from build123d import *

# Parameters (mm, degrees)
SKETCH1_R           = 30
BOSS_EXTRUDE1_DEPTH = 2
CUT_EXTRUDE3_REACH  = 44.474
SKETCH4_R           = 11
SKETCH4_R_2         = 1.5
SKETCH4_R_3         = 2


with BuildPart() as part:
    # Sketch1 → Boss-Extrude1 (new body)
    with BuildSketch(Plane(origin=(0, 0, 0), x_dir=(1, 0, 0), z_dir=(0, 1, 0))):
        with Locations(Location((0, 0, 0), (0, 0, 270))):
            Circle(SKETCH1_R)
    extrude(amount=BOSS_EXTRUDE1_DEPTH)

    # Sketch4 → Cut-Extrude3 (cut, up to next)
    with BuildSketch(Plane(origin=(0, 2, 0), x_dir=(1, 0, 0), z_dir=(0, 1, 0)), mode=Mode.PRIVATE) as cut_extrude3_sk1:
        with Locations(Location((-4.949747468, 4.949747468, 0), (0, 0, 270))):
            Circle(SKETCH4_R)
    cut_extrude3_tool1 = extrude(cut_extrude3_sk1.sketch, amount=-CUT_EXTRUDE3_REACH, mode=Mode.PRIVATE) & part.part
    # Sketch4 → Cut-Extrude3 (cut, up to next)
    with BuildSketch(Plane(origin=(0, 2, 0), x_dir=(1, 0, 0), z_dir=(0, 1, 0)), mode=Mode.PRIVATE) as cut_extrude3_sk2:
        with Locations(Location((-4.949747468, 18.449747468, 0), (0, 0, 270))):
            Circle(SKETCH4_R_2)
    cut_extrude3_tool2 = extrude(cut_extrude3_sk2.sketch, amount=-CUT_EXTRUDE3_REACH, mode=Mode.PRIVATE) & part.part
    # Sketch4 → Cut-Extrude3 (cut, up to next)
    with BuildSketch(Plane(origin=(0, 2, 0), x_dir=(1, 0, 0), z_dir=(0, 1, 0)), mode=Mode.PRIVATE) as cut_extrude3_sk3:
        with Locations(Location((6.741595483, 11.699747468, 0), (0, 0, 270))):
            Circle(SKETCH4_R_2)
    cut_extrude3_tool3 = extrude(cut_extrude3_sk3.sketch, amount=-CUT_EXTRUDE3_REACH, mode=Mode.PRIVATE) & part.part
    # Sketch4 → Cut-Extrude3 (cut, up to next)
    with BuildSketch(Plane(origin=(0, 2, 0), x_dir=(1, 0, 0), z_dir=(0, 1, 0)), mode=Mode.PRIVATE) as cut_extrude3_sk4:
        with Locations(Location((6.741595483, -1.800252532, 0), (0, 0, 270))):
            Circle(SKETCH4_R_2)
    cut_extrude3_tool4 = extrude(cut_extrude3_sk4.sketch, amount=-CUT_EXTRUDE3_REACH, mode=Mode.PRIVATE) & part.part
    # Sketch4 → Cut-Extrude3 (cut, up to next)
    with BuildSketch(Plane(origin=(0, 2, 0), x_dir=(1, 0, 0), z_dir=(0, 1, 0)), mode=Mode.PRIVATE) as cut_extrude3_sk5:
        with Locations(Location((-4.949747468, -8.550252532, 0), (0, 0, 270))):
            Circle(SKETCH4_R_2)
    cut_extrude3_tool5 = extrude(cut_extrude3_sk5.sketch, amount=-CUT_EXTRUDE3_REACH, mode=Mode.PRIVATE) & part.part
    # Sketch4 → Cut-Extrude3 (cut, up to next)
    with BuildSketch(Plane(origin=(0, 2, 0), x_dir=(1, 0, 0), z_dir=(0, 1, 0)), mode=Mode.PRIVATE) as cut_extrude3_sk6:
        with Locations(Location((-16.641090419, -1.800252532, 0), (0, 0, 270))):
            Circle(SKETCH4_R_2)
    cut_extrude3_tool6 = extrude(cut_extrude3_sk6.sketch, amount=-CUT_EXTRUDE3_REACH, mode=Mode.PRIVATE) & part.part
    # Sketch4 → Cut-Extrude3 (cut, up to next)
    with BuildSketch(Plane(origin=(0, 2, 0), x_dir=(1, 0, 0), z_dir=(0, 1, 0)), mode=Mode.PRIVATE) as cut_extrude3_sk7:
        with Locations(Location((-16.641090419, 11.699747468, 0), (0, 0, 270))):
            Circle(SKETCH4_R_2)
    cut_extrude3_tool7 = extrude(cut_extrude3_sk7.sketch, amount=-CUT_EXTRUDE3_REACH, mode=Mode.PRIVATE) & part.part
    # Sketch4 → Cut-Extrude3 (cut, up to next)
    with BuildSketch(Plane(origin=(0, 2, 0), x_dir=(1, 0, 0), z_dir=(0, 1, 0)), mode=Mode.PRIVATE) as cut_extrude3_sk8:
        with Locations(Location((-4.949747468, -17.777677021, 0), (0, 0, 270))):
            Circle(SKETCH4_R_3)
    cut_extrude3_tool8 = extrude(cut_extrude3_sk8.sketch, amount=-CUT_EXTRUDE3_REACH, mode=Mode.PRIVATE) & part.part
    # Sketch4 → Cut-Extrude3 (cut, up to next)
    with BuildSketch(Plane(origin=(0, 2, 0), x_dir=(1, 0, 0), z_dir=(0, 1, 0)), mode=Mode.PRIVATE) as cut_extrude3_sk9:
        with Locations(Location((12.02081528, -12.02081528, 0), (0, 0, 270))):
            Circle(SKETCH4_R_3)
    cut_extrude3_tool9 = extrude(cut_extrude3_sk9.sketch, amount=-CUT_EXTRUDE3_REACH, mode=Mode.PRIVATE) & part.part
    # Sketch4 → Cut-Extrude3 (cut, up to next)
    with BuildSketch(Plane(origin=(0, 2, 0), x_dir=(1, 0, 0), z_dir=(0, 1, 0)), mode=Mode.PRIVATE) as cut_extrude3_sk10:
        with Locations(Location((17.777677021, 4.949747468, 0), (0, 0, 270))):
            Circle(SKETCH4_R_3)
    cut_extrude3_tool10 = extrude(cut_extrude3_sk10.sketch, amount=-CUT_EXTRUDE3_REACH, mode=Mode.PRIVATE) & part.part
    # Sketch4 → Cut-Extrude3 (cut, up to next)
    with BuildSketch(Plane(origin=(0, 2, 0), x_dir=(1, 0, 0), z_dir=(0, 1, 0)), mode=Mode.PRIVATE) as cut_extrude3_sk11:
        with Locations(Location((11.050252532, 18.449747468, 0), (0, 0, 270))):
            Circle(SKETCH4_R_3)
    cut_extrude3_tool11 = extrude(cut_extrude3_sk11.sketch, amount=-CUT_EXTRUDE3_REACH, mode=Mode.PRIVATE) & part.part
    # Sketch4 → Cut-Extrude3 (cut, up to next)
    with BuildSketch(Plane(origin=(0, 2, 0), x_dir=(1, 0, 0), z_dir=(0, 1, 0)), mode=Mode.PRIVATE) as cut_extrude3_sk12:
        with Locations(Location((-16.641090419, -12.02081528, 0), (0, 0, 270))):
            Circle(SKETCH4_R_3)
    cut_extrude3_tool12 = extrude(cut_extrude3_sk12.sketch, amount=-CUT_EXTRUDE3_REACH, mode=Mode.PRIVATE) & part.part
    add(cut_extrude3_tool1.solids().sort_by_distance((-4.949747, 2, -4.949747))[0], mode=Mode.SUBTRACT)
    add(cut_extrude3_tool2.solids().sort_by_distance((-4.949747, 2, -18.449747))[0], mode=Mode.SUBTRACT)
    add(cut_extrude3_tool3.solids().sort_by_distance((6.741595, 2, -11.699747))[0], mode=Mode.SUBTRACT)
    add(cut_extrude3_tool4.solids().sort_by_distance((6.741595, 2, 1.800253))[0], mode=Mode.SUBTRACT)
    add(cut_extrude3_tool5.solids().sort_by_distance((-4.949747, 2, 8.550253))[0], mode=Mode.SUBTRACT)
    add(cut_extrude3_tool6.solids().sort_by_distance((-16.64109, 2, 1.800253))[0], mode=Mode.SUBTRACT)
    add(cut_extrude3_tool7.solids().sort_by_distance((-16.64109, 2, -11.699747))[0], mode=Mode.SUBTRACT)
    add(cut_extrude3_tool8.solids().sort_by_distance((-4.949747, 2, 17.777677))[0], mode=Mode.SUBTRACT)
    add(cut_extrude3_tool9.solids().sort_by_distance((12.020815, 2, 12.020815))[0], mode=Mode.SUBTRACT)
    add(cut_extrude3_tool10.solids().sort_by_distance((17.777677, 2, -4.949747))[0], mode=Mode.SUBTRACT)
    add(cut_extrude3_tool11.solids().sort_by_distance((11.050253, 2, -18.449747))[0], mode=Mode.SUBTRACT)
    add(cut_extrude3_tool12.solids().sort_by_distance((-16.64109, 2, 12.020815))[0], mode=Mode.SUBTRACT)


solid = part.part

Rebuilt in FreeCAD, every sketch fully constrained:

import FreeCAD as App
import Part
import Sketcher

V = App.Vector
Q = App.Units.Quantity

doc = App.newDocument("Part")
params = doc.addObject("Spreadsheet::Sheet", "Params")
for row, (alias, value) in enumerate([
    ("sketch1_diameter", "60 mm"),
    ("pad1_length", "2 mm"),
    ("sketch2_diameter", "22 mm"),
    ("sketch3_diameter", "3 mm"),
    ("sketch4_diameter", "3 mm"),
    ("sketch5_diameter", "3 mm"),
    ("sketch6_diameter", "3 mm"),
    ("sketch7_diameter", "3 mm"),
    ("sketch8_diameter", "3 mm"),
    ("sketch9_diameter", "4 mm"),
    ("sketch10_diameter", "4 mm"),
    ("sketch11_diameter", "4 mm"),
    ("sketch12_diameter", "4 mm"),
    ("sketch13_diameter", "4 mm"),
], start=1):
    params.set(f"A{row}", alias)
    params.set(f"B{row}", "=" + value)
    params.setAlias(f"B{row}", alias)

body = doc.addObject("PartDesign::Body", "Body")

# Sketch on XZ plane
sketch1 = body.newObject("Sketcher::SketchObject", "Sketch")
sketch1.AttachmentSupport = (doc.getObject("XZ_Plane"), [""])
sketch1.MapMode = "FlatFace"
sketch1.addGeometry(Part.Circle(V(0, 0, 0), V(0, 0, 1), 30), False)
sketch1.addConstraint(Sketcher.Constraint("Coincident", 0, 3, -1, 1))
sketch1.addConstraint(Sketcher.Constraint("Diameter", 0, Q("60 mm")))
sketch1.setExpression("Constraints[1]", "Params.sketch1_diameter")
pad1 = body.newObject("PartDesign::Pad", "Pad")
pad1.Profile = sketch1
pad1.setExpression("Length", "Params.pad1_length")
pad1.Reversed = True

# Sketch on XZ plane
sketch2 = body.newObject("Sketcher::SketchObject", "Sketch001")
sketch2.AttachmentSupport = (doc.getObject("XZ_Plane"), [""])
sketch2.MapMode = "FlatFace"
sketch2.AttachmentOffset = App.Placement(V(0, 0, -2), App.Rotation())
sketch2.addGeometry(Part.Circle(V(-4.949747, -4.949747, 0), V(0, 0, 1), 11), False)
sketch2.addConstraint(Sketcher.Constraint("Diameter", 0, Q("22 mm")))
sketch2.addConstraint(Sketcher.Constraint("DistanceX", 0, 3, -1, 1, Q("4.949747 mm")))
sketch2.addConstraint(Sketcher.Constraint("DistanceY", 0, 3, -1, 1, Q("4.949747 mm")))
sketch2.setExpression("Constraints[0]", "Params.sketch2_diameter")
pocket1 = body.newObject("PartDesign::Pocket", "Pocket")
pocket1.Profile = sketch2
pocket1.Type = "UpToFirst"
pocket1.Reversed = True

# Sketch on XZ plane
sketch3 = body.newObject("Sketcher::SketchObject", "Sketch002")
sketch3.AttachmentSupport = (doc.getObject("XZ_Plane"), [""])
sketch3.MapMode = "FlatFace"
sketch3.AttachmentOffset = App.Placement(V(0, 0, -2), App.Rotation())
sketch3.addGeometry(Part.Circle(V(-4.949747, -18.449747, 0), V(0, 0, 1), 1.5), False)
sketch3.addConstraint(Sketcher.Constraint("Diameter", 0, Q("3 mm")))
sketch3.addConstraint(Sketcher.Constraint("DistanceX", 0, 3, -1, 1, Q("4.949747 mm")))
sketch3.addConstraint(Sketcher.Constraint("DistanceY", 0, 3, -1, 1, Q("18.449747 mm")))
sketch3.setExpression("Constraints[0]", "Params.sketch3_diameter")
pocket2 = body.newObject("PartDesign::Pocket", "Pocket001")
pocket2.Profile = sketch3
pocket2.Type = "UpToFirst"
pocket2.Reversed = True

# Sketch on XZ plane
sketch4 = body.newObject("Sketcher::SketchObject", "Sketch003")
sketch4.AttachmentSupport = (doc.getObject("XZ_Plane"), [""])
sketch4.MapMode = "FlatFace"
sketch4.AttachmentOffset = App.Placement(V(0, 0, -2), App.Rotation())
sketch4.addGeometry(Part.Circle(V(6.741595, -11.699747, 0), V(0, 0, 1), 1.5), False)
sketch4.addConstraint(Sketcher.Constraint("Diameter", 0, Q("3 mm")))
sketch4.addConstraint(Sketcher.Constraint("DistanceX", -1, 1, 0, 3, Q("6.741595 mm")))
sketch4.addConstraint(Sketcher.Constraint("DistanceY", 0, 3, -1, 1, Q("11.699747 mm")))
sketch4.setExpression("Constraints[0]", "Params.sketch4_diameter")
pocket3 = body.newObject("PartDesign::Pocket", "Pocket002")
pocket3.Profile = sketch4
pocket3.Type = "UpToFirst"
pocket3.Reversed = True

# Sketch on XZ plane
sketch5 = body.newObject("Sketcher::SketchObject", "Sketch004")
sketch5.AttachmentSupport = (doc.getObject("XZ_Plane"), [""])
sketch5.MapMode = "FlatFace"
sketch5.AttachmentOffset = App.Placement(V(0, 0, -2), App.Rotation())
sketch5.addGeometry(Part.Circle(V(6.741595, 1.800253, 0), V(0, 0, 1), 1.5), False)
sketch5.addConstraint(Sketcher.Constraint("Diameter", 0, Q("3 mm")))
sketch5.addConstraint(Sketcher.Constraint("DistanceX", -1, 1, 0, 3, Q("6.741595 mm")))
sketch5.addConstraint(Sketcher.Constraint("DistanceY", -1, 1, 0, 3, Q("1.800253 mm")))
sketch5.setExpression("Constraints[0]", "Params.sketch5_diameter")
pocket4 = body.newObject("PartDesign::Pocket", "Pocket003")
pocket4.Profile = sketch5
pocket4.Type = "UpToFirst"
pocket4.Reversed = True

# Sketch on XZ plane
sketch6 = body.newObject("Sketcher::SketchObject", "Sketch005")
sketch6.AttachmentSupport = (doc.getObject("XZ_Plane"), [""])
sketch6.MapMode = "FlatFace"
sketch6.AttachmentOffset = App.Placement(V(0, 0, -2), App.Rotation())
sketch6.addGeometry(Part.Circle(V(-4.949747, 8.550253, 0), V(0, 0, 1), 1.5), False)
sketch6.addConstraint(Sketcher.Constraint("Diameter", 0, Q("3 mm")))
sketch6.addConstraint(Sketcher.Constraint("DistanceX", 0, 3, -1, 1, Q("4.949747 mm")))
sketch6.addConstraint(Sketcher.Constraint("DistanceY", -1, 1, 0, 3, Q("8.550253 mm")))
sketch6.setExpression("Constraints[0]", "Params.sketch6_diameter")
pocket5 = body.newObject("PartDesign::Pocket", "Pocket004")
pocket5.Profile = sketch6
pocket5.Type = "UpToFirst"
pocket5.Reversed = True

# Sketch on XZ plane
sketch7 = body.newObject("Sketcher::SketchObject", "Sketch006")
sketch7.AttachmentSupport = (doc.getObject("XZ_Plane"), [""])
sketch7.MapMode = "FlatFace"
sketch7.AttachmentOffset = App.Placement(V(0, 0, -2), App.Rotation())
sketch7.addGeometry(Part.Circle(V(-16.64109, 1.800253, 0), V(0, 0, 1), 1.5), False)
sketch7.addConstraint(Sketcher.Constraint("Diameter", 0, Q("3 mm")))
sketch7.addConstraint(Sketcher.Constraint("DistanceX", 0, 3, -1, 1, Q("16.64109 mm")))
sketch7.addConstraint(Sketcher.Constraint("DistanceY", -1, 1, 0, 3, Q("1.800253 mm")))
sketch7.setExpression("Constraints[0]", "Params.sketch7_diameter")
pocket6 = body.newObject("PartDesign::Pocket", "Pocket005")
pocket6.Profile = sketch7
pocket6.Type = "UpToFirst"
pocket6.Reversed = True

# Sketch on XZ plane
sketch8 = body.newObject("Sketcher::SketchObject", "Sketch007")
sketch8.AttachmentSupport = (doc.getObject("XZ_Plane"), [""])
sketch8.MapMode = "FlatFace"
sketch8.AttachmentOffset = App.Placement(V(0, 0, -2), App.Rotation())
sketch8.addGeometry(Part.Circle(V(-16.64109, -11.699747, 0), V(0, 0, 1), 1.5), False)
sketch8.addConstraint(Sketcher.Constraint("Diameter", 0, Q("3 mm")))
sketch8.addConstraint(Sketcher.Constraint("DistanceX", 0, 3, -1, 1, Q("16.64109 mm")))
sketch8.addConstraint(Sketcher.Constraint("DistanceY", 0, 3, -1, 1, Q("11.699747 mm")))
sketch8.setExpression("Constraints[0]", "Params.sketch8_diameter")
pocket7 = body.newObject("PartDesign::Pocket", "Pocket006")
pocket7.Profile = sketch8
pocket7.Type = "UpToFirst"
pocket7.Reversed = True

# Sketch on XZ plane
sketch9 = body.newObject("Sketcher::SketchObject", "Sketch008")
sketch9.AttachmentSupport = (doc.getObject("XZ_Plane"), [""])
sketch9.MapMode = "FlatFace"
sketch9.AttachmentOffset = App.Placement(V(0, 0, -2), App.Rotation())
sketch9.addGeometry(Part.Circle(V(-4.949747, 17.777677, 0), V(0, 0, 1), 2), False)
sketch9.addConstraint(Sketcher.Constraint("Diameter", 0, Q("4 mm")))
sketch9.addConstraint(Sketcher.Constraint("DistanceX", 0, 3, -1, 1, Q("4.949747 mm")))
sketch9.addConstraint(Sketcher.Constraint("DistanceY", -1, 1, 0, 3, Q("17.777677 mm")))
sketch9.setExpression("Constraints[0]", "Params.sketch9_diameter")
pocket8 = body.newObject("PartDesign::Pocket", "Pocket007")
pocket8.Profile = sketch9
pocket8.Type = "UpToFirst"
pocket8.Reversed = True

# Sketch on XZ plane
sketch10 = body.newObject("Sketcher::SketchObject", "Sketch009")
sketch10.AttachmentSupport = (doc.getObject("XZ_Plane"), [""])
sketch10.MapMode = "FlatFace"
sketch10.AttachmentOffset = App.Placement(V(0, 0, -2), App.Rotation())
sketch10.addGeometry(Part.Circle(V(12.020815, 12.020815, 0), V(0, 0, 1), 2), False)
sketch10.addConstraint(Sketcher.Constraint("Diameter", 0, Q("4 mm")))
sketch10.addConstraint(Sketcher.Constraint("DistanceX", -1, 1, 0, 3, Q("12.020815 mm")))
sketch10.addConstraint(Sketcher.Constraint("DistanceY", -1, 1, 0, 3, Q("12.020815 mm")))
sketch10.setExpression("Constraints[0]", "Params.sketch10_diameter")
pocket9 = body.newObject("PartDesign::Pocket", "Pocket008")
pocket9.Profile = sketch10
pocket9.Type = "UpToFirst"
pocket9.Reversed = True

# Sketch on XZ plane
sketch11 = body.newObject("Sketcher::SketchObject", "Sketch010")
sketch11.AttachmentSupport = (doc.getObject("XZ_Plane"), [""])
sketch11.MapMode = "FlatFace"
sketch11.AttachmentOffset = App.Placement(V(0, 0, -2), App.Rotation())
sketch11.addGeometry(Part.Circle(V(17.777677, -4.949747, 0), V(0, 0, 1), 2), False)
sketch11.addConstraint(Sketcher.Constraint("Diameter", 0, Q("4 mm")))
sketch11.addConstraint(Sketcher.Constraint("DistanceX", -1, 1, 0, 3, Q("17.777677 mm")))
sketch11.addConstraint(Sketcher.Constraint("DistanceY", 0, 3, -1, 1, Q("4.949747 mm")))
sketch11.setExpression("Constraints[0]", "Params.sketch11_diameter")
pocket10 = body.newObject("PartDesign::Pocket", "Pocket009")
pocket10.Profile = sketch11
pocket10.Type = "UpToFirst"
pocket10.Reversed = True

# Sketch on XZ plane
sketch12 = body.newObject("Sketcher::SketchObject", "Sketch011")
sketch12.AttachmentSupport = (doc.getObject("XZ_Plane"), [""])
sketch12.MapMode = "FlatFace"
sketch12.AttachmentOffset = App.Placement(V(0, 0, -2), App.Rotation())
sketch12.addGeometry(Part.Circle(V(11.050253, -18.449747, 0), V(0, 0, 1), 2), False)
sketch12.addConstraint(Sketcher.Constraint("Diameter", 0, Q("4 mm")))
sketch12.addConstraint(Sketcher.Constraint("DistanceX", -1, 1, 0, 3, Q("11.050253 mm")))
sketch12.addConstraint(Sketcher.Constraint("DistanceY", 0, 3, -1, 1, Q("18.449747 mm")))
sketch12.setExpression("Constraints[0]", "Params.sketch12_diameter")
pocket11 = body.newObject("PartDesign::Pocket", "Pocket010")
pocket11.Profile = sketch12
pocket11.Type = "UpToFirst"
pocket11.Reversed = True

# Sketch on XZ plane
sketch13 = body.newObject("Sketcher::SketchObject", "Sketch012")
sketch13.AttachmentSupport = (doc.getObject("XZ_Plane"), [""])
sketch13.MapMode = "FlatFace"
sketch13.AttachmentOffset = App.Placement(V(0, 0, -2), App.Rotation())
sketch13.addGeometry(Part.Circle(V(-16.64109, 12.020815, 0), V(0, 0, 1), 2), False)
sketch13.addConstraint(Sketcher.Constraint("Diameter", 0, Q("4 mm")))
sketch13.addConstraint(Sketcher.Constraint("DistanceX", 0, 3, -1, 1, Q("16.64109 mm")))
sketch13.addConstraint(Sketcher.Constraint("DistanceY", -1, 1, 0, 3, Q("12.020815 mm")))
sketch13.setExpression("Constraints[0]", "Params.sketch13_diameter")
pocket12 = body.newObject("PartDesign::Pocket", "Pocket011")
pocket12.Profile = sketch13
pocket12.Type = "UpToFirst"
pocket12.Reversed = True

doc.recompute()
